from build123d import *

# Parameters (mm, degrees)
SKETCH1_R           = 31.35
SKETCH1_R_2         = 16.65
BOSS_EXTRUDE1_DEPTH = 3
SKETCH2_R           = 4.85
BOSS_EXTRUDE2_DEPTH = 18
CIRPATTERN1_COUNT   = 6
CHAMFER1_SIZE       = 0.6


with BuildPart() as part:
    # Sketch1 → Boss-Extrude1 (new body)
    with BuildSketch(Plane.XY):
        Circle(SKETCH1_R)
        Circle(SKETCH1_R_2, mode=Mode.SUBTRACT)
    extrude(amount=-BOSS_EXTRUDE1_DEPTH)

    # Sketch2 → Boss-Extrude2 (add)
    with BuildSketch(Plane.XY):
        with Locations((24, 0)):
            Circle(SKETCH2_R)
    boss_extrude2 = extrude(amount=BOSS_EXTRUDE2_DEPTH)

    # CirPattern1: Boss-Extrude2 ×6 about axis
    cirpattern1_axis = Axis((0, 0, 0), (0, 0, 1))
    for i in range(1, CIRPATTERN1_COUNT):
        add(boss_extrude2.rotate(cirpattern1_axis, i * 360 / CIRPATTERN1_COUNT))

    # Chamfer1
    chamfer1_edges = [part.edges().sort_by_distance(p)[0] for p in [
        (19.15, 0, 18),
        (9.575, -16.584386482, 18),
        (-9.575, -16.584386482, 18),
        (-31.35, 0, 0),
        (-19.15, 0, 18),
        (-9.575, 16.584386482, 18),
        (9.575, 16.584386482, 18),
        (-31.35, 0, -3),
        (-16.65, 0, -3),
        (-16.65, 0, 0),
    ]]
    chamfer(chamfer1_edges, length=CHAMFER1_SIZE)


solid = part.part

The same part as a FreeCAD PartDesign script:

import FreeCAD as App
import Part
import Sketcher

V = App.Vector
Q = App.Units.Quantity


def edges_at(feature, points):
    """Names of the edges that pass closest to the given points."""
    edges = feature.Shape.Edges
    near = lambda p: min(range(len(edges)), key=lambda i: edges[i].distToShape(Part.Vertex(*p))[0])
    return sorted({f"Edge{near(p) + 1}" for p in points})

doc = App.newDocument("Part")
body = doc.addObject("PartDesign::Body", "Body")

sketch1 = body.newObject("Sketcher::SketchObject", "Sketch")
sketch1.AttachmentSupport = (doc.getObject("XY_Plane"), [""])
sketch1.MapMode = "FlatFace"
sketch1.addGeometry([
    Part.Circle(V(0, 0, 0), V(0, 0, 1), 31.35),
    Part.Circle(V(0, 0, 0), V(0, 0, 1), 16.65),
], False)
sketch1.addConstraint([
    Sketcher.Constraint("Coincident", 0, 3, -1, 1),
    Sketcher.Constraint("Coincident", 1, 3, -1, 1),
    Sketcher.Constraint("Diameter", 0, Q("62.7 mm")),
    Sketcher.Constraint("Diameter", 1, Q("33.3 mm")),
])
pad1 = body.newObject("PartDesign::Pad", "Pad")
pad1.Profile = sketch1
pad1.Length = 3
pad1.Reversed = True

sketch2 = body.newObject("Sketcher::SketchObject", "Sketch001")
sketch2.AttachmentSupport = (doc.getObject("XY_Plane"), [""])
sketch2.MapMode = "FlatFace"
sketch2.addGeometry(Part.Circle(V(24, 0, 0), V(0, 0, 1), 4.85), False)
sketch2.addConstraint([
    Sketcher.Constraint("PointOnObject", 0, 3, -1),
    Sketcher.Constraint("Diameter", 0, Q("9.7 mm")),
    Sketcher.Constraint("DistanceX", -1, 1, 0, 3, Q("24 mm")),
])
pad2 = body.newObject("PartDesign::Pad", "Pad001")
pad2.Profile = sketch2
pad2.Length = 18
doc.recompute()

polarpattern = body.newObject("PartDesign::PolarPattern", "PolarPattern")
polarpattern.Originals = [pad2]
polarpattern.Axis = (doc.getObject("Z_Axis"), [""])
polarpattern.Angle = 360
polarpattern.Occurrences = 6
body.Tip = polarpattern
doc.recompute()

chamfer = body.newObject("PartDesign::Chamfer", "Chamfer")
chamfer.Base = (polarpattern, edges_at(polarpattern, [
    (19.15, 0, 18),
    (9.575, -16.584, 18),
    (-9.575, -16.584, 18),
    (-31.35, 0, 0),
    (-19.15, 0, 18),
    (-9.575, 16.584, 18),
    (9.575, 16.584, 18),
    (-31.35, 0, -3),
    (-16.65, 0, -3),
    (-16.65, 0, 0),
]))
chamfer.Size = 0.6

doc.recompute()
